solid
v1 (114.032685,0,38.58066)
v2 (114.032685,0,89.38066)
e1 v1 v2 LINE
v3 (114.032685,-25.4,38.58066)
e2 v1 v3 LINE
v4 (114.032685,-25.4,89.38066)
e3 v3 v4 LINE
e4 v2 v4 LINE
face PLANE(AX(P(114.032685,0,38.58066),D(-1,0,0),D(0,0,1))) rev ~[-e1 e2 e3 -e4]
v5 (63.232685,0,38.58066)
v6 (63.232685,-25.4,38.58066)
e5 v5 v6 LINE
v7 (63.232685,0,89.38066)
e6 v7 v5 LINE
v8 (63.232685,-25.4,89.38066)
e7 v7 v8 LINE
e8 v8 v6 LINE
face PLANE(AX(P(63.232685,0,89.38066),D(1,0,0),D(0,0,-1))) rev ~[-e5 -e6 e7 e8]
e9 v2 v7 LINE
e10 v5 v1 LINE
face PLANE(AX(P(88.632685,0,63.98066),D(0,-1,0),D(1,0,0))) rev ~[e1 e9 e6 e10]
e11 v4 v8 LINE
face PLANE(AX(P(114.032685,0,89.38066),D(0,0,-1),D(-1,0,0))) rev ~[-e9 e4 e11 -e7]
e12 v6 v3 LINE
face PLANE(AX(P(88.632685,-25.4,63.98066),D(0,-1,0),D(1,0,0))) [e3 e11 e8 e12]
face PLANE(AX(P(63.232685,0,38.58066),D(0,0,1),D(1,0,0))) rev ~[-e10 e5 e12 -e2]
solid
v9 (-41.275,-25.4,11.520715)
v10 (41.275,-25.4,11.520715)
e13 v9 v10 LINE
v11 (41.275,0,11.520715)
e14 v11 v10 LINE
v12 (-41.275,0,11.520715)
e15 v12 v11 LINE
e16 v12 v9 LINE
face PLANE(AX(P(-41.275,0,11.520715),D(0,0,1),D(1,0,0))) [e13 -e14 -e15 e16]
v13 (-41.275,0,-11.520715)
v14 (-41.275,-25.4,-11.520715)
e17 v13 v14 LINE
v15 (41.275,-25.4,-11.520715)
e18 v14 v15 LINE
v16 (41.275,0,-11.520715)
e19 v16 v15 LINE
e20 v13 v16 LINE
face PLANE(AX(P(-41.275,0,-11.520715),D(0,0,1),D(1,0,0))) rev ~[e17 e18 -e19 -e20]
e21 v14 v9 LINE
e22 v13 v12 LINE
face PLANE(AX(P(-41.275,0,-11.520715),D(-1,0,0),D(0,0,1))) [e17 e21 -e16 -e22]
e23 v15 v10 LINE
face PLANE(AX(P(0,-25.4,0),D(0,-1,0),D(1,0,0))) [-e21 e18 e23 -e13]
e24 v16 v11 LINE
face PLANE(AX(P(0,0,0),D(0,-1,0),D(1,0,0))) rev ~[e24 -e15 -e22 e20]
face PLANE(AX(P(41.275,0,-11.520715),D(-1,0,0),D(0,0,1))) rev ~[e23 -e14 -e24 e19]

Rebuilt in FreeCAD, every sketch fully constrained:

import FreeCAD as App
import Part
import Sketcher
Q = App.Units.Quantity

doc = App.newDocument("Part")
params = doc.addObject("Spreadsheet::Sheet", "Params")
for row, (alias, value) in enumerate([
    ("sketch1_width", "2 in"),
    ("sketch1_width2", "3.25 in"),
    ("pad1_length", "1 in"),
], start=1):
    params.set(f"A{row}", alias)
    params.set(f"B{row}", "=" + value)
    params.setAlias(f"B{row}", alias)

body = doc.addObject("PartDesign::Body", "Body")
body.AllowCompound = True

# Sketch on XZ plane
sketch1 = body.newObject("Sketcher::SketchObject", "Sketch")
sketch1.AttachmentSupport = (doc.getObject("XZ_Plane"), [""])
sketch1.MapMode = "FlatFace"
sketch1.addGeometry([
    Part.LineSegment(App.Vector(63, 89, 0), App.Vector(63, 39, 0)),  # 0
    Part.LineSegment(App.Vector(63, 39, 0), App.Vector(114, 39, 0)),  # 1
    Part.LineSegment(App.Vector(114, 39, 0), App.Vector(114, 89, 0)),  # 2
    Part.LineSegment(App.Vector(114, 89, 0), App.Vector(63, 89, 0)),  # 3
    Part.LineSegment(App.Vector(-41, 12, 0), App.Vector(-41, -12, 0)),  # 4
    Part.LineSegment(App.Vector(-41, -12, 0), App.Vector(41, -12, 0)),  # 5
    Part.LineSegment(App.Vector(41, -12, 0), App.Vector(41, 12, 0)),  # 6
    Part.LineSegment(App.Vector(41, 12, 0), App.Vector(-41, 12, 0)),  # 7
], False)
sketch1.addConstraint([
    Sketcher.Constraint("Coincident", 0, 2, 1, 1),
    Sketcher.Constraint("Coincident", 1, 2, 2, 1),
    Sketcher.Constraint("Coincident", 2, 2, 3, 1),
    Sketcher.Constraint("Coincident", 3, 2, 0, 1),
    Sketcher.Constraint("Coincident", 4, 2, 5, 1),
    Sketcher.Constraint("Coincident", 5, 2, 6, 1),
    Sketcher.Constraint("Coincident", 6, 2, 7, 1),
    Sketcher.Constraint("Coincident", 7, 2, 4, 1),
    Sketcher.Constraint("Vertical", 0),
    Sketcher.Constraint("Horizontal", 1),
    Sketcher.Constraint("Vertical", 2),
    Sketcher.Constraint("Horizontal", 3),
    Sketcher.Constraint("Vertical", 4),
    Sketcher.Constraint("Horizontal", 5),
    Sketcher.Constraint("Vertical", 6),
    Sketcher.Constraint("Horizontal", 7),
    Sketcher.Constraint("Symmetric", 4, 2, 6, 2, -1, 1),
    Sketcher.Constraint("Equal", 3, 0),
    Sketcher.Constraint("DistanceX", 1, 1, 1, 2, Q("2 in")),
    Sketcher.Constraint("DistanceX", 5, 1, 5, 2, Q("3.25 in")),
    Sketcher.Constraint("DistanceY", 4, 2, 4, 1, Q("23.04143 mm")),
    Sketcher.Constraint("DistanceY", -1, 1, 0, 2, Q("38.58066 mm")),
    Sketcher.Constraint("DistanceX", -1, 1, 0, 2, Q("63.232685 mm")),
])
sketch1.setExpression("Constraints[18]", "Params.sketch1_width")
sketch1.setExpression("Constraints[19]", "Params.sketch1_width2")
pad1 = body.newObject("PartDesign::Pad", "Pad")
pad1.Profile = sketch1
pad1.setExpression("Length", "Params.pad1_length")

doc.recompute()
